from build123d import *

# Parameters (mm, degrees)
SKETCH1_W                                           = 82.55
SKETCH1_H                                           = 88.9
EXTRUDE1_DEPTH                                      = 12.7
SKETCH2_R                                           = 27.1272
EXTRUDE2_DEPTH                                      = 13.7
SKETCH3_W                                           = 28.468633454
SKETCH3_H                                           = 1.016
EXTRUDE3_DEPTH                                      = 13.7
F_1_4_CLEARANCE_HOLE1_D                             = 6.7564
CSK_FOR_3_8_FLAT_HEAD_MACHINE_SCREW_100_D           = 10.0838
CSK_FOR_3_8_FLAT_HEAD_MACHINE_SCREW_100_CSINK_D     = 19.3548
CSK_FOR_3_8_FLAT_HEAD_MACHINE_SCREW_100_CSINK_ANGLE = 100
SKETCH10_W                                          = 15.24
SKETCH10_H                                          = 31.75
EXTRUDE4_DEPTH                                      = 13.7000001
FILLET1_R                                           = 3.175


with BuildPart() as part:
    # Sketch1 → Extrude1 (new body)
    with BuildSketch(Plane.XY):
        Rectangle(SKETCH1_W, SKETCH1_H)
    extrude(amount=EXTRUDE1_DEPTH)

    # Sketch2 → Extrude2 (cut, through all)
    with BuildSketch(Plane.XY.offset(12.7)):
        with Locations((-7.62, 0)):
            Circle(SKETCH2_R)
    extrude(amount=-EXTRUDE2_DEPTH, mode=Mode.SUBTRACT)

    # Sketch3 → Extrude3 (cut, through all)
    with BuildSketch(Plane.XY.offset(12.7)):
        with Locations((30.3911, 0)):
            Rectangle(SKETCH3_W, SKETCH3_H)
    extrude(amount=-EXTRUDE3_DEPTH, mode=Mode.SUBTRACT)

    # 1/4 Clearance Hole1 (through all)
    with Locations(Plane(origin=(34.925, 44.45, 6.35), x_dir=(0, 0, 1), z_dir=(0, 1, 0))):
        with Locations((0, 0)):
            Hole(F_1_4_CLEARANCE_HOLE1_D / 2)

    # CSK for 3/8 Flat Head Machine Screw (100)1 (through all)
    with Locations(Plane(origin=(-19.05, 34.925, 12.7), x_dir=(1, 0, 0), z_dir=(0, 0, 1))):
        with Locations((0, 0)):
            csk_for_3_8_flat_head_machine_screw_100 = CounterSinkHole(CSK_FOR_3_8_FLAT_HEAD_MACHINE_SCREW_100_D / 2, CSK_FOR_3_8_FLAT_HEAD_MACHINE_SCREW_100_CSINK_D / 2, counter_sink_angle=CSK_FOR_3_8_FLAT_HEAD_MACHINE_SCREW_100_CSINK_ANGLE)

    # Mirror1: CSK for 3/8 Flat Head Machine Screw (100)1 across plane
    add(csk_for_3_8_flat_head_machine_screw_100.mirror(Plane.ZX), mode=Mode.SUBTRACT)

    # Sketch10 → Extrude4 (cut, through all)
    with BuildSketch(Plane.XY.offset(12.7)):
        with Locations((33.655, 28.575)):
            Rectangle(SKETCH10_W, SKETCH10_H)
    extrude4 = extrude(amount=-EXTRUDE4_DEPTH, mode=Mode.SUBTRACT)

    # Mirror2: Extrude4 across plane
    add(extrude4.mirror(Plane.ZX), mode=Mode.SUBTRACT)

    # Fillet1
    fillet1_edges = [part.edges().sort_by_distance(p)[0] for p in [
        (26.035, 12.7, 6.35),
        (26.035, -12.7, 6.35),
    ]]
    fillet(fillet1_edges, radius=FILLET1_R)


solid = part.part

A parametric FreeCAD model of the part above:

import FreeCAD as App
import Part
import Sketcher
Q = App.Units.Quantity


def edges_at(feature, points):
    """Names of the edges that pass closest to the given points."""
    edges = feature.Shape.Edges
    near = lambda p: min(range(len(edges)), key=lambda i: edges[i].distToShape(Part.Vertex(*p))[0])
    return sorted({f"Edge{near(p) + 1}" for p in points})


def add_polygon(sketch, points):
    """Adds a closed chain of lines whose ends are joined by coincident constraints."""
    first, n = sketch.GeometryCount, len(points)
    for a, b in zip(points, points[1:] + points[:1]):
        sketch.addGeometry(Part.LineSegment(App.Vector(*a, 0), App.Vector(*b, 0)), False)
    for i in range(n):
        sketch.addConstraint(Sketcher.Constraint("Coincident", first + i, 2, first + (i + 1) % n, 1))

doc = App.newDocument("Part")
body = doc.addObject("PartDesign::Body", "Body")

# Sketch on XY plane
sketch1 = body.newObject("Sketcher::SketchObject", "Sketch")
sketch1.AttachmentSupport = (doc.getObject("XY_Plane"), [""])
sketch1.MapMode = "FlatFace"
add_polygon(sketch1, [(-41, 44), (-41, -44), (41, -44), (41, 44)])  # lines 0-3
sketch1.addConstraint([
    Sketcher.Constraint("Vertical", 0),
    Sketcher.Constraint("Horizontal", 1),
    Sketcher.Constraint("Vertical", 2),
    Sketcher.Constraint("Horizontal", 3),
    Sketcher.Constraint("Symmetric", 0, 2, 2, 2, -1, 1),
    Sketcher.Constraint("DistanceY", 0, 2, 0, 1, Q("3.5 in")),
    Sketcher.Constraint("DistanceX", 1, 1, 1, 2, Q("3.25 in")),
])
pad1 = body.newObject("PartDesign::Pad", "Pad")
pad1.Profile = sketch1
pad1.Length = Q("0.5 in")

# Sketch on XY plane
sketch2 = body.newObject("Sketcher::SketchObject", "Sketch001")
sketch2.AttachmentSupport = (doc.getObject("XY_Plane"), [""])
sketch2.MapMode = "FlatFace"
sketch2.AttachmentOffset = App.Placement(App.Vector(0, 0, 0.5 * 25.4), App.Rotation())
sketch2.addGeometry(Part.Circle(App.Vector(-8, 0, 0), App.Vector(0, 0, 1), 27), False)
sketch2.addConstraint([
    Sketcher.Constraint("PointOnObject", 0, 3, -1),
    Sketcher.Constraint("Diameter", 0, Q("2.136 in")),
    Sketcher.Constraint("DistanceX", 0, 3, -1, 1, Q("0.3 in")),
])
pocket1 = body.newObject("PartDesign::Pocket", "Pocket")
pocket1.Profile = sketch2
pocket1.Type = "ThroughAll"

# Sketch on XY plane
sketch3 = body.newObject("Sketcher::SketchObject", "Sketch002")
sketch3.AttachmentSupport = (doc.getObject("XY_Plane"), [""])
sketch3.MapMode = "FlatFace"
sketch3.AttachmentOffset = App.Placement(App.Vector(0, 0, 0.5 * 25.4), App.Rotation())
add_polygon(sketch3, [(16.2, 0.5), (16.2, -0.5), (44.6, -0.5), (44.6, 0.5)])  # lines 0-3
sketch3.addConstraint([
    Sketcher.Constraint("Vertical", 0),
    Sketcher.Constraint("Horizontal", 1),
    Sketcher.Constraint("Vertical", 2),
    Sketcher.Constraint("Horizontal", 3),
    Sketcher.Constraint("DistanceY", 0, 2, 0, 1, Q("0.04 in")),
    Sketcher.Constraint("DistanceY", 0, 2, -1, 1, Q("0.02 in")),
    Sketcher.Constraint("DistanceX", 1, 1, 1, 2, Q("28.468633 mm")),
    Sketcher.Constraint("DistanceX", -1, 1, 0, 2, Q("16.156783 mm")),
])
pocket2 = body.newObject("PartDesign::Pocket", "Pocket001")
pocket2.Profile = sketch3
pocket2.Type = "ThroughAll"

# Sketch on XZ plane
sketch4 = body.newObject("Sketcher::SketchObject", "Sketch003")
sketch4.AttachmentSupport = (doc.getObject("XZ_Plane"), [""])
sketch4.MapMode = "FlatFace"
sketch4.AttachmentOffset = App.Placement(App.Vector(0, 0, -1.75 * 25.4), App.Rotation())
sketch4.addGeometry(Part.Circle(App.Vector(34.9, 6.3, 0), App.Vector(0, 0, 1), 3.4), False)
sketch4.addConstraint([
    Sketcher.Constraint("Diameter", 0, Q("0.266 in")),
    Sketcher.Constraint("DistanceY", -1, 1, 0, 3, Q("0.25 in")),
    Sketcher.Constraint("DistanceX", -1, 1, 0, 3, Q("1.375 in")),
])
doc.recompute()
hole = body.newObject("PartDesign::Hole", "Hole")
hole.Profile = sketch4
hole.ThreadType = "None"
hole.Diameter = Q("0.266 in")
hole.DepthType = "ThroughAll"
hole.Reversed = True

# Sketch on XY plane
sketch5 = body.newObject("Sketcher::SketchObject", "Sketch004")
sketch5.AttachmentSupport = (doc.getObject("XY_Plane"), [""])
sketch5.MapMode = "FlatFace"
sketch5.AttachmentOffset = App.Placement(App.Vector(0, 0, 0.5 * 25.4), App.Rotation())
sketch5.addGeometry(Part.Circle(App.Vector(-19, 35, 0), App.Vector(0, 0, 1), 5), False)
sketch5.addConstraint([
    Sketcher.Constraint("Diameter", 0, Q("0.397 in")),
    Sketcher.Constraint("DistanceX", 0, 3, -1, 1, Q("0.75 in")),
    Sketcher.Constraint("DistanceY", -1, 1, 0, 3, Q("1.375 in")),
])
doc.recompute()
hole2 = body.newObject("PartDesign::Hole", "Hole001")
hole2.Profile = sketch5
hole2.ThreadType = "None"
hole2.Diameter = Q("0.397 in")
hole2.DepthType = "ThroughAll"
hole2.HoleCutType = "Countersink"
hole2.HoleCutDiameter = Q("0.762 in")
hole2.HoleCutCountersinkAngle = 100
doc.recompute()

mirrored = body.newObject("PartDesign::Mirrored", "Mirrored")
mirrored.Originals = [hole2]
mirrored.MirrorPlane = (doc.getObject("XZ_Plane"), [""])
body.Tip = mirrored

# Sketch on XY plane
sketch6 = body.newObject("Sketcher::SketchObject", "Sketch005")
sketch6.AttachmentSupport = (doc.getObject("XY_Plane"), [""])
sketch6.MapMode = "FlatFace"
sketch6.AttachmentOffset = App.Placement(App.Vector(0, 0, 0.5 * 25.4), App.Rotation())
add_polygon(sketch6, [(26, 44), (26, 13), (41, 13), (41, 44)])  # lines 0-3
sketch6.addConstraint([
    Sketcher.Constraint("Vertical", 0),
    Sketcher.Constraint("Horizontal", 1),
    Sketcher.Constraint("Vertical", 2),
    Sketcher.Constraint("Horizontal", 3),
    Sketcher.Constraint("DistanceX", 1, 1, 1, 2, Q("0.6 in")),
    Sketcher.Constraint("DistanceY", 0, 2, 0, 1, Q("1.25 in")),
    Sketcher.Constraint("DistanceY", -1, 1, 0, 2, Q("0.5 in")),
    Sketcher.Constraint("DistanceX", -1, 1, 0, 2, Q("1.025 in")),
])
pocket3 = body.newObject("PartDesign::Pocket", "Pocket002")
pocket3.Profile = sketch6
pocket3.Type = "ThroughAll"
doc.recompute()

mirrored2 = body.newObject("PartDesign::Mirrored", "Mirrored001")
mirrored2.Originals = [pocket3]
mirrored2.MirrorPlane = (doc.getObject("XZ_Plane"), [""])
body.Tip = mirrored2
doc.recompute()

fillet = body.newObject("PartDesign::Fillet", "Fillet")
fillet.Base = (mirrored2, edges_at(mirrored2, [(26.035, 12.7, 6.35), (26.035, -12.7, 6.35)]))
fillet.Radius = Q("0.125 in")

doc.recompute()
